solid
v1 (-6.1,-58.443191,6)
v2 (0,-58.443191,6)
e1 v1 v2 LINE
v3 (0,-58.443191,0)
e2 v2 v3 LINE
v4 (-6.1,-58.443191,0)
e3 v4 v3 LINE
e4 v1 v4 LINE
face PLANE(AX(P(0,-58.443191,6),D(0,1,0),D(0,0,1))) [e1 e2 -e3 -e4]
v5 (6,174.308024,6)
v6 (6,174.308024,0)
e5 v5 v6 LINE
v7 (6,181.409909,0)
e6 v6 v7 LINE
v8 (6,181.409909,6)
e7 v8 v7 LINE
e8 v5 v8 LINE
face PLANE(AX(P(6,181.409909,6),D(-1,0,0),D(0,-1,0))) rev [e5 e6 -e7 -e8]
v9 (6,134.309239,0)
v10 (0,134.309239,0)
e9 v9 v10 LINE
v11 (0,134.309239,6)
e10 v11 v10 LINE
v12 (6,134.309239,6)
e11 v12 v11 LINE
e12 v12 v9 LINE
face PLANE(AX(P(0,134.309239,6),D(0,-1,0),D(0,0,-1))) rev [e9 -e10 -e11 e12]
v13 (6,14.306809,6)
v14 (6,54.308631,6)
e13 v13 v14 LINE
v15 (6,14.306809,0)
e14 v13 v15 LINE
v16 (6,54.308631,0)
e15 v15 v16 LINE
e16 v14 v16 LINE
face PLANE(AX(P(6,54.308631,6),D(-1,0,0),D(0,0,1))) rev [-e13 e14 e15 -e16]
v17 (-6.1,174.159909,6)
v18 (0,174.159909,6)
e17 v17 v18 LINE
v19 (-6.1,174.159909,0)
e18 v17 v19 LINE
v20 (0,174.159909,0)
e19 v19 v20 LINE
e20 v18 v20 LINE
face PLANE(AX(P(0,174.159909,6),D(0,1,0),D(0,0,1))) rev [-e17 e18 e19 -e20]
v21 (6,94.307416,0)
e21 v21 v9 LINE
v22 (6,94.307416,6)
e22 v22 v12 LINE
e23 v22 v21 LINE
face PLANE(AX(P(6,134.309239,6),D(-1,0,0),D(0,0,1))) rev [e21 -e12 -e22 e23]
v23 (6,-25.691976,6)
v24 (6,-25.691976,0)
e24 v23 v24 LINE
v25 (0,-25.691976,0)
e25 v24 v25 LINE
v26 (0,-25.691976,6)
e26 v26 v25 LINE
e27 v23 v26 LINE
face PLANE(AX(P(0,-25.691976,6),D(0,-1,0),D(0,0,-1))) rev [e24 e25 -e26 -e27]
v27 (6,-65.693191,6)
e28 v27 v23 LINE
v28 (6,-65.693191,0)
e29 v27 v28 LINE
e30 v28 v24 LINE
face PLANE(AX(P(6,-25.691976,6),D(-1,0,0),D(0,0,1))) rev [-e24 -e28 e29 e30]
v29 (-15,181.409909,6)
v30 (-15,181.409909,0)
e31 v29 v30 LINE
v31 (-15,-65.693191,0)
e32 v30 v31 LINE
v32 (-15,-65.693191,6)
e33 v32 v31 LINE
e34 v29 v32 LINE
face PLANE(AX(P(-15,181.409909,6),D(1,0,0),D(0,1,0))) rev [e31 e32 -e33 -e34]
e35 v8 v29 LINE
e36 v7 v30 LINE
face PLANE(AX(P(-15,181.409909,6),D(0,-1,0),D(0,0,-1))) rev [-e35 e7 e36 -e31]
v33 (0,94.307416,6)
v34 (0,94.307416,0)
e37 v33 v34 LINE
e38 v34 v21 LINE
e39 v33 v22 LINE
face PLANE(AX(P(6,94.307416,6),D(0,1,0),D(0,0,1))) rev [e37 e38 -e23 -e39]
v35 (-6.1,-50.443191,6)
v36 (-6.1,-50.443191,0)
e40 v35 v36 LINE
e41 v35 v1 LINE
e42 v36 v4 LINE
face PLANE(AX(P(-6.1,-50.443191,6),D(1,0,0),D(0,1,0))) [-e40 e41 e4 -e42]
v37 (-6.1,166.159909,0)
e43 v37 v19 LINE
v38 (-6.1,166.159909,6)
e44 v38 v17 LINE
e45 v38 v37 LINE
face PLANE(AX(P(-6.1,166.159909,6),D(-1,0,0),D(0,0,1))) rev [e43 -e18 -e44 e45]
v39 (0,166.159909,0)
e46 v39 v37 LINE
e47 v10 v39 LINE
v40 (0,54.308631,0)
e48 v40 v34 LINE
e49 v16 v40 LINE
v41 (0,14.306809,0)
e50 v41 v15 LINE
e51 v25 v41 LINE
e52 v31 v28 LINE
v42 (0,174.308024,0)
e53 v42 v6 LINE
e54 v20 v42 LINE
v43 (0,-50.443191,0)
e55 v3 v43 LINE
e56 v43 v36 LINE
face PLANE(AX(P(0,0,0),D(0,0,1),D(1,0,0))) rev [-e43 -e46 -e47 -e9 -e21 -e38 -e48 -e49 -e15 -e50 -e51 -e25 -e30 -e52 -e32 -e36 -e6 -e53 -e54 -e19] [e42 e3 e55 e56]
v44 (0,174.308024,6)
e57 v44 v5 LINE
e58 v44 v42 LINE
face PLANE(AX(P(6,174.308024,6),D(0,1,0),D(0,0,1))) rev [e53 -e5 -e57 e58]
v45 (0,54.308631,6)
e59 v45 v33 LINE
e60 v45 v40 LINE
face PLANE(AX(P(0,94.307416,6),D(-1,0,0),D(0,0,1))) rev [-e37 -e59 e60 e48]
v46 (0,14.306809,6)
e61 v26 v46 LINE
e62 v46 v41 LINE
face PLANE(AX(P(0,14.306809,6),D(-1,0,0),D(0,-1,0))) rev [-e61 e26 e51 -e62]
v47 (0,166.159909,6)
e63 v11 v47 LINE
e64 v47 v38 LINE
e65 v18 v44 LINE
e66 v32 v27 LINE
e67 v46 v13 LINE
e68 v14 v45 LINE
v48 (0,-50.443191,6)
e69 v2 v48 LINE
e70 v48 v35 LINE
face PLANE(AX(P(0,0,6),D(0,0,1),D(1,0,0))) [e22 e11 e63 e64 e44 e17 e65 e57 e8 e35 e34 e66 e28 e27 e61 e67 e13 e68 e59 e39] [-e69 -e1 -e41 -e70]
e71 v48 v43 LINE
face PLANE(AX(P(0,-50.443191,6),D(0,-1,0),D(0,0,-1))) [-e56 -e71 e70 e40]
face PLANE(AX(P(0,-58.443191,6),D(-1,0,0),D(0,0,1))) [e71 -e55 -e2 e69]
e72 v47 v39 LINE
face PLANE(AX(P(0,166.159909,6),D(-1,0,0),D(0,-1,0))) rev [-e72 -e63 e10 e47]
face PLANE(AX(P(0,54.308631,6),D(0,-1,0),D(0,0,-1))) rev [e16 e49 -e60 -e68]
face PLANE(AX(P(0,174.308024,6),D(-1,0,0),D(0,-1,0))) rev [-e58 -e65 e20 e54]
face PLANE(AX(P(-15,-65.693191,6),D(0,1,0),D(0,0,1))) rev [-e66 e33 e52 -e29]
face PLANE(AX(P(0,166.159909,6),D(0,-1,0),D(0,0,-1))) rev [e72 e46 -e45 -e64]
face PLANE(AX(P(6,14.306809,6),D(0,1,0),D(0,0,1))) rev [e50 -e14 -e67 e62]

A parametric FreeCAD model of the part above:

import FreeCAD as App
import Part
import Sketcher


def add_polygon(sketch, points):
    """Adds a closed chain of lines whose ends are joined by coincident constraints."""
    first, n = sketch.GeometryCount, len(points)
    for a, b in zip(points, points[1:] + points[:1]):
        sketch.addGeometry(Part.LineSegment(App.Vector(*a, 0), App.Vector(*b, 0)), False)
    for i in range(n):
        sketch.addConstraint(Sketcher.Constraint("Coincident", first + i, 2, first + (i + 1) % n, 1))

doc = App.newDocument("Part")
body = doc.addObject("PartDesign::Body", "Body")

sketch1 = body.newObject("Sketcher::SketchObject", "Sketch")
sketch1.AttachmentSupport = (doc.getObject("XY_Plane"), [""])
sketch1.MapMode = "FlatFace"
add_polygon(sketch1, [(6, 181.41), (-15, 181.41), (-15, -65.69), (6, -65.69), (6, -25.69), (0, -25.69), (0, 14.31), (6, 14.31), (6, 54.31), (0, 54.31), (0, 94.31), (6, 94.31), (6, 134.31), (0, 134.31), (0, 166.16), (-6.1, 166.16), (-6.1, 174.16), (0, 174.16), (0, 174.31), (6, 174.31)])
add_polygon(sketch1, [(-6.1, -58.44), (-6.1, -50.44), (0, -50.44), (0, -58.44)])
sketch1.addConstraint(Sketcher.Constraint("Horizontal", 0))
sketch1.addConstraint(Sketcher.Constraint("Vertical", 1))
sketch1.addConstraint(Sketcher.Constraint("Horizontal", 2))
sketch1.addConstraint(Sketcher.Constraint("Vertical", 3))
sketch1.addConstraint(Sketcher.Constraint("Horizontal", 4))
sketch1.addConstraint(Sketcher.Constraint("Vertical", 5))
sketch1.addConstraint(Sketcher.Constraint("Horizontal", 6))
sketch1.addConstraint(Sketcher.Constraint("Vertical", 7))
sketch1.addConstraint(Sketcher.Constraint("Horizontal", 8))
sketch1.addConstraint(Sketcher.Constraint("Vertical", 9))
sketch1.addConstraint(Sketcher.Constraint("Horizontal", 10))
sketch1.addConstraint(Sketcher.Constraint("Vertical", 11))
sketch1.addConstraint(Sketcher.Constraint("Horizontal", 12))
sketch1.addConstraint(Sketcher.Constraint("Vertical", 13))
sketch1.addConstraint(Sketcher.Constraint("Horizontal", 14))
sketch1.addConstraint(Sketcher.Constraint("Vertical", 15))
sketch1.addConstraint(Sketcher.Constraint("Horizontal", 16))
sketch1.addConstraint(Sketcher.Constraint("Vertical", 17))
sketch1.addConstraint(Sketcher.Constraint("Horizontal", 18))
sketch1.addConstraint(Sketcher.Constraint("Vertical", 19))
sketch1.addConstraint(Sketcher.Constraint("Vertical", 20))
sketch1.addConstraint(Sketcher.Constraint("Horizontal", 21))
sketch1.addConstraint(Sketcher.Constraint("Vertical", 22))
sketch1.addConstraint(Sketcher.Constraint("Horizontal", 23))
sketch1.addConstraint(Sketcher.Constraint("PointOnObject", 4, 2, -2))
sketch1.addConstraint(Sketcher.Constraint("PointOnObject", 8, 2, -2))
sketch1.addConstraint(Sketcher.Constraint("PointOnObject", 12, 2, -2))
sketch1.addConstraint(Sketcher.Constraint("PointOnObject", 16, 2, -2))
sketch1.addConstraint(Sketcher.Constraint("PointOnObject", 21, 2, -2))
sketch1.addConstraint(Sketcher.Constraint("Vertical", 3, 2, 6, 2))
sketch1.addConstraint(Sketcher.Constraint("Vertical", 7, 2, 10, 2))
sketch1.addConstraint(Sketcher.Constraint("Vertical", 11, 2, 18, 2))
sketch1.addConstraint(Sketcher.Constraint("Vertical", 15, 2, 20, 2))
sketch1.addConstraint(Sketcher.Constraint("Equal", 5, 9))
sketch1.addConstraint(Sketcher.Constraint("Equal", 7, 11))
sketch1.addConstraint(Sketcher.Constraint("Equal", 15, 20))
sketch1.addConstraint(Sketcher.Constraint("DistanceX", 0, 2, 0, 1, 21.0))
sketch1.addConstraint(Sketcher.Constraint("DistanceX", 4, 2, 4, 1, 6.0))
sketch1.addConstraint(Sketcher.Constraint("DistanceY", 15, 1, 15, 2, 8.0))
sketch1.addConstraint(Sketcher.Constraint("DistanceX", 14, 2, 14, 1, 6.1))
sketch1.addConstraint(Sketcher.Constraint("DistanceY", 2, 2, 5, 2, 80.0))
sketch1.addConstraint(Sketcher.Constraint("DistanceY", 13, 2, 0, 2, 15.25))
sketch1.addConstraint(Sketcher.Constraint("DistanceY", 1, 2, 20, 2, 15.25))
sketch1.addConstraint(Sketcher.Constraint("DistanceY", 1, 2, 1, 1, 247.1031))
sketch1.addConstraint(Sketcher.Constraint("DistanceY", 13, 1, 13, 2, 31.85067))
sketch1.addConstraint(Sketcher.Constraint("DistanceY", 3, 1, 3, 2, 40.001215))
sketch1.addConstraint(Sketcher.Constraint("DistanceY", 17, 1, 17, 2, 0.148115))
sketch1.addConstraint(Sketcher.Constraint("DistanceY", -1, 1, 0, 2, 181.409909))
pad1 = body.newObject("PartDesign::Pad", "Pad")
pad1.Profile = sketch1
pad1.Length = 6

doc.recompute()
